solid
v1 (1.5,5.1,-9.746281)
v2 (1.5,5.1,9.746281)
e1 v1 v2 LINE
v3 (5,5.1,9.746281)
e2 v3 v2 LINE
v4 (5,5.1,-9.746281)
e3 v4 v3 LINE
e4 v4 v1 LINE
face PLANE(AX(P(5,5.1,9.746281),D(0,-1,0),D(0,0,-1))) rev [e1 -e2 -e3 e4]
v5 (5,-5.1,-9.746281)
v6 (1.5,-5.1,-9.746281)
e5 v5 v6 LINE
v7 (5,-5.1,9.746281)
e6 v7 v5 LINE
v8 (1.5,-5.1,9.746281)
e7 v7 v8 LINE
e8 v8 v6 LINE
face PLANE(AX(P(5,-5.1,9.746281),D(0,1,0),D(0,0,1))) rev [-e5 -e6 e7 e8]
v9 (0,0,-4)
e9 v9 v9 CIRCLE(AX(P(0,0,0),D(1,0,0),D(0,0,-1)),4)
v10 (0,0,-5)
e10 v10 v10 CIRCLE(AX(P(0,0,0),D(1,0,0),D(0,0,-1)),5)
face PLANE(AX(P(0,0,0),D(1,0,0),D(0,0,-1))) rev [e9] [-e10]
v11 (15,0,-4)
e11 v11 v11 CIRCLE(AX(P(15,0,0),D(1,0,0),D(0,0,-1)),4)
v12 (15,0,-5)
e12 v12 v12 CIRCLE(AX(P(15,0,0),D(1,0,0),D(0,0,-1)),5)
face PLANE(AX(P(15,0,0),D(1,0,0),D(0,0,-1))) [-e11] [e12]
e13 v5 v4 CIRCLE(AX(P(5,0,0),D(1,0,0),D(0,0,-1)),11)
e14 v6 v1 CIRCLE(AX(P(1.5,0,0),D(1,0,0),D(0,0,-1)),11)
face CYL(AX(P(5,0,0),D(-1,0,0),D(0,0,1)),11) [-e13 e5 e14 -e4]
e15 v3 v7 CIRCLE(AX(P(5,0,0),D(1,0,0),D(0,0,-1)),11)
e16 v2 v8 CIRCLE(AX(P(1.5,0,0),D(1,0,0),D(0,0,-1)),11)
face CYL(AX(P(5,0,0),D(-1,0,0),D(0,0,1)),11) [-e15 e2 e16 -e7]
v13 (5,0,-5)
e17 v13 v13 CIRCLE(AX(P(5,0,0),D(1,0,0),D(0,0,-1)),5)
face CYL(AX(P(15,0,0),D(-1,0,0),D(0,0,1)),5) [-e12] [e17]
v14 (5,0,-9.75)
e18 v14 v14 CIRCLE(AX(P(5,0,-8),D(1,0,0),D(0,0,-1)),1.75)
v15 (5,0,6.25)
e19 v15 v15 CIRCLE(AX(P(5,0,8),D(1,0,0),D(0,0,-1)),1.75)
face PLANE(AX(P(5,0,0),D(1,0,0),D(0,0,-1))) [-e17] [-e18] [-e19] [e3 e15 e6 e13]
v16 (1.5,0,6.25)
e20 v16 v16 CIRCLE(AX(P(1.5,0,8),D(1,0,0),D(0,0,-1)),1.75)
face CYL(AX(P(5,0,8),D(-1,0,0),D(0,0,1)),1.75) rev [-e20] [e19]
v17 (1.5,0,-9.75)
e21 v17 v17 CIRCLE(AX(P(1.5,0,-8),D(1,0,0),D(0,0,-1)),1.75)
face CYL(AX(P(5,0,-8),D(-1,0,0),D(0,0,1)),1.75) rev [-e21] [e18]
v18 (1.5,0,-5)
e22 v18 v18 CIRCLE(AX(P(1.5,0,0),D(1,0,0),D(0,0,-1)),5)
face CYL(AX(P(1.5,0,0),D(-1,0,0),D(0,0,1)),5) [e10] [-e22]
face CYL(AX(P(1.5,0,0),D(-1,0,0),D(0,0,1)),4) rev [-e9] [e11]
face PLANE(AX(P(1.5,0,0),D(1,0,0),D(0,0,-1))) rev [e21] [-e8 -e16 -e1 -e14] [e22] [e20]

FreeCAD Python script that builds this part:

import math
import FreeCAD as App
import Part
import Sketcher
from FreeCAD import Vector

doc = App.newDocument("Part")
params = doc.addObject("Spreadsheet::Sheet", "Params")
for row, (alias, value) in enumerate([
    ("sketch1_diameter", "10 mm"),
    ("sketch1_diameter2", "8 mm"),
    ("pad1_length", "1.5 mm"),
    ("sketch2_diameter", "8 mm"),
    ("sketch2_radius", "11 mm"),
    ("sketch2_diameter2", "3.5 mm"),
    ("pad2_length", "3.5 mm"),
    ("sketch3_diameter", "10 mm"),
    ("sketch3_diameter2", "8 mm"),
    ("pad3_length", "10 mm"),
], start=1):
    params.set(f"A{row}", alias)
    params.set(f"B{row}", "=" + value)
    params.setAlias(f"B{row}", alias)

body = doc.addObject("PartDesign::Body", "Body")

# Sketch on YZ plane
sketch1 = body.newObject("Sketcher::SketchObject", "Sketch")
sketch1.AttachmentSupport = (doc.getObject("YZ_Plane"), [""])
sketch1.MapMode = "FlatFace"
sketch1.addGeometry([
    Part.Circle(Vector(0, 0, 0), Vector(0, 0, 1), 5),
    Part.Circle(Vector(0, 0, 0), Vector(0, 0, 1), 4),
], False)
sketch1.addConstraint([
    Sketcher.Constraint("Coincident", 0, 3, -1, 1),
    Sketcher.Constraint("Coincident", 1, 3, -1, 1),
    Sketcher.Constraint("Diameter", 0, 10.0),
    Sketcher.Constraint("Diameter", 1, 8.0),
])
sketch1.setExpression("Constraints[2]", "Params.sketch1_diameter")
sketch1.setExpression("Constraints[3]", "Params.sketch1_diameter2")
pad1 = body.newObject("PartDesign::Pad", "Pad")
pad1.Profile = sketch1
pad1.setExpression("Length", "Params.pad1_length")

# Sketch on YZ plane
sketch2 = body.newObject("Sketcher::SketchObject", "Sketch001")
sketch2.AttachmentSupport = (doc.getObject("YZ_Plane"), [""])
sketch2.MapMode = "FlatFace"
sketch2.AttachmentOffset = App.Placement(Vector(0, 0, 1.5), App.Rotation())
sketch2.addGeometry([
    Part.LineSegment(Vector(5.1, -9.746281, 0), Vector(5.1, 9.746281, 0)),  # 0
    Part.ArcOfCircle(Part.Circle(Vector(0, 0, 0), Vector(0, 0, 1), 11), math.radians(62.377995), math.radians(117.622005)),  # 1
    Part.LineSegment(Vector(-5.1, 9.746281, 0), Vector(-5.1, -9.746281, 0)),  # 2
    Part.ArcOfCircle(Part.Circle(Vector(0, 0, 0), Vector(0, 0, 1), 11), math.radians(-117.622005), math.radians(-62.377995)),  # 3
    Part.Circle(Vector(0, -8, 0), Vector(0, 0, 1), 1.75),  # 4
    Part.Circle(Vector(0, 0, 0), Vector(0, 0, 1), 4),  # 5
    Part.Circle(Vector(0, 8, 0), Vector(0, 0, 1), 1.75),  # 6
], False)
sketch2.addConstraint([
    Sketcher.Constraint("Coincident", 0, 2, 1, 1),
    Sketcher.Constraint("Coincident", 1, 2, 2, 1),
    Sketcher.Constraint("Coincident", 2, 2, 3, 1),
    Sketcher.Constraint("Coincident", 3, 2, 0, 1),
    Sketcher.Constraint("Vertical", 0),
    Sketcher.Constraint("Vertical", 2),
    Sketcher.Constraint("Coincident", 1, 3, -1, 1),
    Sketcher.Constraint("Coincident", 3, 3, -1, 1),
    Sketcher.Constraint("Coincident", 5, 3, -1, 1),
    Sketcher.Constraint("Equal", 1, 3),
    Sketcher.Constraint("Equal", 4, 6),
    Sketcher.Constraint("Symmetric", 4, 3, 6, 3, -1, 1),
    Sketcher.Constraint("PointOnObject", 4, 3, -2),
    Sketcher.Constraint("Horizontal", 0, 2, 1, 2),
    Sketcher.Constraint("Diameter", 5, 8.0),
    Sketcher.Constraint("Radius", 1, 11.0),
    Sketcher.Constraint("Diameter", 4, 3.5),
    Sketcher.Constraint("DistanceY", 4, 3, -1, 1, 8.0),
    Sketcher.Constraint("DistanceX", -1, 1, 0, 2, 5.1),
])
sketch2.setExpression("Constraints[14]", "Params.sketch2_diameter")
sketch2.setExpression("Constraints[15]", "Params.sketch2_radius")
sketch2.setExpression("Constraints[16]", "Params.sketch2_diameter2")
pad2 = body.newObject("PartDesign::Pad", "Pad001")
pad2.Profile = sketch2
pad2.setExpression("Length", "Params.pad2_length")

# Sketch on YZ plane
sketch3 = body.newObject("Sketcher::SketchObject", "Sketch002")
sketch3.AttachmentSupport = (doc.getObject("YZ_Plane"), [""])
sketch3.MapMode = "FlatFace"
sketch3.AttachmentOffset = App.Placement(Vector(0, 0, 5), App.Rotation())
sketch3.addGeometry([
    Part.Circle(Vector(0, 0, 0), Vector(0, 0, 1), 5),
    Part.Circle(Vector(0, 0, 0), Vector(0, 0, 1), 4),
], False)
sketch3.addConstraint([
    Sketcher.Constraint("Coincident", 0, 3, -1, 1),
    Sketcher.Constraint("Coincident", 1, 3, -1, 1),
    Sketcher.Constraint("Diameter", 0, 10.0),
    Sketcher.Constraint("Diameter", 1, 8.0),
])
sketch3.setExpression("Constraints[2]", "Params.sketch3_diameter")
sketch3.setExpression("Constraints[3]", "Params.sketch3_diameter2")
pad3 = body.newObject("PartDesign::Pad", "Pad002")
pad3.Profile = sketch3
pad3.setExpression("Length", "Params.pad3_length")

doc.recompute()
